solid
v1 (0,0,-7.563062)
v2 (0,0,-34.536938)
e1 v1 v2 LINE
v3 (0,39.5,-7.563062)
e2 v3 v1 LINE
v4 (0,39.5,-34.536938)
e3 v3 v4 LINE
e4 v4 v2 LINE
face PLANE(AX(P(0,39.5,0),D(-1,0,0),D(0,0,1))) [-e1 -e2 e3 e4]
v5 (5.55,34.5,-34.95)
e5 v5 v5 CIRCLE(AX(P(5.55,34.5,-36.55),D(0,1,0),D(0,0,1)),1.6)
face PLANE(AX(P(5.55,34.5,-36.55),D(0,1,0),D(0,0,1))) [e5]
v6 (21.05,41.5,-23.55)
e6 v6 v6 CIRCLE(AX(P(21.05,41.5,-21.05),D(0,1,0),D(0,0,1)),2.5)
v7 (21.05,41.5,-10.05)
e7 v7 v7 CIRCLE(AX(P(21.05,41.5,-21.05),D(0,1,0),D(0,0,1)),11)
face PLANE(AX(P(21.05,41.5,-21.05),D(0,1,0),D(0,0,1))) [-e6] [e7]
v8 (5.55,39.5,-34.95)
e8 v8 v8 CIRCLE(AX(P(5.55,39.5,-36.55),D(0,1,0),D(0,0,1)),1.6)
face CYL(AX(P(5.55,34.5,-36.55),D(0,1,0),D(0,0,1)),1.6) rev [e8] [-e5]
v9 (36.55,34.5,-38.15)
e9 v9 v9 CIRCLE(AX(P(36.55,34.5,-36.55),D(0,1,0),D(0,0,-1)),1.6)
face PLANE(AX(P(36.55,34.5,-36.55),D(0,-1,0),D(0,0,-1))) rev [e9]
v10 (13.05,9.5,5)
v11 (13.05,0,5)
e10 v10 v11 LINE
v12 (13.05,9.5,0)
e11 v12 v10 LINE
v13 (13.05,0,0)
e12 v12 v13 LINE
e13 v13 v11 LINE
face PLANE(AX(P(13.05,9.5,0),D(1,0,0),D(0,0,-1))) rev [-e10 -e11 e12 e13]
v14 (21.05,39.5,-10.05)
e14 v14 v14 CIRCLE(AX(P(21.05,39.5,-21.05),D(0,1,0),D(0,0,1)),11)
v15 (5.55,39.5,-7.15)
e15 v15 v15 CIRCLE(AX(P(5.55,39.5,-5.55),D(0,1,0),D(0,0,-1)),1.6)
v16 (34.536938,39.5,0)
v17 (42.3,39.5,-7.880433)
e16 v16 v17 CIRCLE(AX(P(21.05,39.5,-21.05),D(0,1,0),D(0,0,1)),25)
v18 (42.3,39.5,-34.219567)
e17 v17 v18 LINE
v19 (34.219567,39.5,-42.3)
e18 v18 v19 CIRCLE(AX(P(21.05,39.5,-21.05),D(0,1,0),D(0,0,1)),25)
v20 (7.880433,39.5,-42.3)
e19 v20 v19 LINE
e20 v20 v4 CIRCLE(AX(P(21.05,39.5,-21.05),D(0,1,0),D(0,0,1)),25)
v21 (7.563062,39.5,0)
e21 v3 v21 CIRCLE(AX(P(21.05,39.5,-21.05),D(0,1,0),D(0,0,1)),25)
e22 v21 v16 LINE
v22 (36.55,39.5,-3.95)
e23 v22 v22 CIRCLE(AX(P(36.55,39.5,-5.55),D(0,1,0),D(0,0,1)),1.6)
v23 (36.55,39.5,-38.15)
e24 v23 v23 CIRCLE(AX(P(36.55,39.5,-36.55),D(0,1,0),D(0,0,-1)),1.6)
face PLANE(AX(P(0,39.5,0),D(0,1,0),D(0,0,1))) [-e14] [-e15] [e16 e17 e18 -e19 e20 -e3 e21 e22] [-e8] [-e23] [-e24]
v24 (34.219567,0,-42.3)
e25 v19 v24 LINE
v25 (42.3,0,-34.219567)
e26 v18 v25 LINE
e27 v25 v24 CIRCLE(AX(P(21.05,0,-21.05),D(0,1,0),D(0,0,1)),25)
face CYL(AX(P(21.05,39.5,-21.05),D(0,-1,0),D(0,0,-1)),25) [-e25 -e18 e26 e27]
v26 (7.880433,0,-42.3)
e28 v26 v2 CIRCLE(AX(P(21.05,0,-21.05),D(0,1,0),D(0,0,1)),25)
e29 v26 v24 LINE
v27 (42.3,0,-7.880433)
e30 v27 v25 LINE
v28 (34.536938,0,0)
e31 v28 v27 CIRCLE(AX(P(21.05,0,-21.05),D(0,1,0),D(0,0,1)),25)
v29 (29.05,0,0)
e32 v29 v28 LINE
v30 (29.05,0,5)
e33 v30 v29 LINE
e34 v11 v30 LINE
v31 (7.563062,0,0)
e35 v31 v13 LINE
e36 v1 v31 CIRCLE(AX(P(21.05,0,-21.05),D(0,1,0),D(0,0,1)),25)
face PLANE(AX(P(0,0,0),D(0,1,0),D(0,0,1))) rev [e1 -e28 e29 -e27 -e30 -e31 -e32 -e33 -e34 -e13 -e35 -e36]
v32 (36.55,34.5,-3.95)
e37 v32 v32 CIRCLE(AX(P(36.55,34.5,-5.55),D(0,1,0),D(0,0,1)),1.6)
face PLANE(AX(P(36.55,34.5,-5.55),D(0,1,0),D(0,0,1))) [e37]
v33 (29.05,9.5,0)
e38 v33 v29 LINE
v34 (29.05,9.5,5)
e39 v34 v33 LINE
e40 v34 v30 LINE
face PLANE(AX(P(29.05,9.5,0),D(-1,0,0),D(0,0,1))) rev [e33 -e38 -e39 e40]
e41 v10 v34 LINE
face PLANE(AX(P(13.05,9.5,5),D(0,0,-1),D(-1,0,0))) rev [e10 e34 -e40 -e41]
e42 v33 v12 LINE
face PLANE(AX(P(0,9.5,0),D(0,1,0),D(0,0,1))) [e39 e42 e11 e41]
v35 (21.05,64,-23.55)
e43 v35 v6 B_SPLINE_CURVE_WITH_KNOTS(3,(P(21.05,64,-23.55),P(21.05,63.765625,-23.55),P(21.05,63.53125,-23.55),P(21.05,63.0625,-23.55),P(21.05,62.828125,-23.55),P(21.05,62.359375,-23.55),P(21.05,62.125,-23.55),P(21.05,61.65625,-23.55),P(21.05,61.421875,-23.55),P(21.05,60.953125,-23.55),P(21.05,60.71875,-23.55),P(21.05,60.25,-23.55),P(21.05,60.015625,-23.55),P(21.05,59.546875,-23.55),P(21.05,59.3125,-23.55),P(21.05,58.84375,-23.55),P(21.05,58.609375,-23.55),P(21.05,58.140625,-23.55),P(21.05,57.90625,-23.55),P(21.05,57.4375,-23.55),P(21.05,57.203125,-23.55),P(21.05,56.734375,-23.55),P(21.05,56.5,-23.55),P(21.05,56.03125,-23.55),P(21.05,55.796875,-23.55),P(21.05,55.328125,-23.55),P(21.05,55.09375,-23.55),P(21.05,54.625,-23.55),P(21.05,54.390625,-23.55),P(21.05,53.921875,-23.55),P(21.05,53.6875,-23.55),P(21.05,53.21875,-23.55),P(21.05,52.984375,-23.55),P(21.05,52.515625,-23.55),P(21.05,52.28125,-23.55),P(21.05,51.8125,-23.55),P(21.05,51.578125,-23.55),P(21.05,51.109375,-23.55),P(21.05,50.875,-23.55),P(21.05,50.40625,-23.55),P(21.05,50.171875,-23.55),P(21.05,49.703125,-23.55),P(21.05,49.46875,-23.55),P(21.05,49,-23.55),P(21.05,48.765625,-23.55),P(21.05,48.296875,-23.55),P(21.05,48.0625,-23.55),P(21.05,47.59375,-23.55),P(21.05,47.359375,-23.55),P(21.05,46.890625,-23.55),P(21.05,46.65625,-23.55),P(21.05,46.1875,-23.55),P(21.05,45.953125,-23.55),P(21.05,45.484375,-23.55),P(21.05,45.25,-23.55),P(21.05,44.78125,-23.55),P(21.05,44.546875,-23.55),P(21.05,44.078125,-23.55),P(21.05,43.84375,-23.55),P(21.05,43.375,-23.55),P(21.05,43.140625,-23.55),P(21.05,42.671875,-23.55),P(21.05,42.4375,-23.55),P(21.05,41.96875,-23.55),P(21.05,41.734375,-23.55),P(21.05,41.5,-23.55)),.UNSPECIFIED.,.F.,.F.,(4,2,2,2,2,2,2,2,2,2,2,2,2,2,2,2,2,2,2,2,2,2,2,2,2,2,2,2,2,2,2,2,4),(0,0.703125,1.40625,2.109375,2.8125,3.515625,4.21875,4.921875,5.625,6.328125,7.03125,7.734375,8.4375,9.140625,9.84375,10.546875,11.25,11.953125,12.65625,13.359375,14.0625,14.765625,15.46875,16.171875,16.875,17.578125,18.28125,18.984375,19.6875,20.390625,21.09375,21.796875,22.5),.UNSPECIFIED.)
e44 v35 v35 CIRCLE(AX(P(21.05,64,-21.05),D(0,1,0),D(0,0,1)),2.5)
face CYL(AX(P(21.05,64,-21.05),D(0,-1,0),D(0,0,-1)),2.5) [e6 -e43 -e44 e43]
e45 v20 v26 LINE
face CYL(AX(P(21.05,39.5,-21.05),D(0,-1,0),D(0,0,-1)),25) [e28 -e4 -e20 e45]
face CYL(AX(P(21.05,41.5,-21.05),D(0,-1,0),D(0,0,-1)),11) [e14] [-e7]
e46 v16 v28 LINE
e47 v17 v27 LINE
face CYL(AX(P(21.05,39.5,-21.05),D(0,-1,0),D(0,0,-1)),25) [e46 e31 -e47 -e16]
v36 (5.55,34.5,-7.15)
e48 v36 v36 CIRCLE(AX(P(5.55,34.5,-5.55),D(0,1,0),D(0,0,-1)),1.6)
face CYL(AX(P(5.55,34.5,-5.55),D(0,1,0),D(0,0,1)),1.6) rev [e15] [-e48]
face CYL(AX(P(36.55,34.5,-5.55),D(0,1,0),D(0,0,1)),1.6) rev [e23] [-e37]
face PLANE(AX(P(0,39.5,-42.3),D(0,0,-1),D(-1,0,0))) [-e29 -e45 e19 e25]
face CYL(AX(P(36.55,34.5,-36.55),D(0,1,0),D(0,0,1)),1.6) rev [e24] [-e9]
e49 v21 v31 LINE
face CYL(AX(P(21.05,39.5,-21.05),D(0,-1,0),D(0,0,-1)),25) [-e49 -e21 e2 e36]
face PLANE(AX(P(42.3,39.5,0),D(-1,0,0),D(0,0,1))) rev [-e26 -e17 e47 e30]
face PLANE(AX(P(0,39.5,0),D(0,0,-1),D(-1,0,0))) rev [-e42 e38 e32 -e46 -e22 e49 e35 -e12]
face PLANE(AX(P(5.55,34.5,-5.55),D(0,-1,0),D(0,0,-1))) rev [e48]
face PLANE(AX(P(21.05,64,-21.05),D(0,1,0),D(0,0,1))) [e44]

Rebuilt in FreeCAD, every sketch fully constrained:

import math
import FreeCAD as App
import Part
import Sketcher

V = App.Vector
Q = App.Units.Quantity


def add_polygon(sketch, points):
    """Adds a closed chain of lines whose ends are joined by coincident constraints."""
    first, n = sketch.GeometryCount, len(points)
    for a, b in zip(points, points[1:] + points[:1]):
        sketch.addGeometry(Part.LineSegment(App.Vector(*a, 0), App.Vector(*b, 0)), False)
    for i in range(n):
        sketch.addConstraint(Sketcher.Constraint("Coincident", first + i, 2, first + (i + 1) % n, 1))

doc = App.newDocument("Part")
body = doc.addObject("PartDesign::Body", "Body")

# Sketch on XZ plane
sketch1 = body.newObject("Sketcher::SketchObject", "Sketch")
sketch1.AttachmentSupport = (doc.getObject("XZ_Plane"), [""])
sketch1.MapMode = "FlatFace"
sketch1.addGeometry(Part.ArcOfCircle(Part.Circle(V(21.05, -21.05, 0), V(0, 0, 1), 25), math.radians(122.648079), math.radians(147.351921)), False)
sketch1.addGeometry(Part.LineSegment(V(7.563062, 0, 0), V(34.536938, 0, 0)), False)
sketch1.addGeometry(Part.ArcOfCircle(Part.Circle(V(21.05, -21.05, 0), V(0, 0, 1), 25), math.radians(31.788331), math.radians(57.351921)), False)
sketch1.addGeometry(Part.LineSegment(V(42.3, -7.880433, 0), V(42.3, -34.219567, 0)), False)
sketch1.addGeometry(Part.ArcOfCircle(Part.Circle(V(21.05, -21.05, 0), V(0, 0, 1), 25), math.radians(-58.211669), math.radians(-31.788331)), False)
sketch1.addGeometry(Part.LineSegment(V(34.219567, -42.3, 0), V(7.880433, -42.3, 0)), False)
sketch1.addGeometry(Part.ArcOfCircle(Part.Circle(V(21.05, -21.05, 0), V(0, 0, 1), 25), math.radians(-147.351921), math.radians(-121.788331)), False)
sketch1.addGeometry(Part.LineSegment(V(0, -34.536938, 0), V(0, -7.563062, 0)), False)
sketch1.addConstraint(Sketcher.Constraint("Coincident", 0, 1, 1, 1))
sketch1.addConstraint(Sketcher.Constraint("Coincident", 1, 2, 2, 2))
sketch1.addConstraint(Sketcher.Constraint("Coincident", 2, 1, 3, 1))
sketch1.addConstraint(Sketcher.Constraint("Coincident", 3, 2, 4, 2))
sketch1.addConstraint(Sketcher.Constraint("Coincident", 4, 1, 5, 1))
sketch1.addConstraint(Sketcher.Constraint("Coincident", 5, 2, 6, 2))
sketch1.addConstraint(Sketcher.Constraint("Coincident", 6, 1, 7, 1))
sketch1.addConstraint(Sketcher.Constraint("Coincident", 7, 2, 0, 2))
sketch1.addConstraint(Sketcher.Constraint("Horizontal", 1))
sketch1.addConstraint(Sketcher.Constraint("Vertical", 3))
sketch1.addConstraint(Sketcher.Constraint("Horizontal", 5))
sketch1.addConstraint(Sketcher.Constraint("Vertical", 7))
sketch1.addConstraint(Sketcher.Constraint("Coincident", 2, 3, 0, 3))
sketch1.addConstraint(Sketcher.Constraint("Coincident", 4, 3, 0, 3))
sketch1.addConstraint(Sketcher.Constraint("Coincident", 6, 3, 0, 3))
sketch1.addConstraint(Sketcher.Constraint("Equal", 0, 2))
sketch1.addConstraint(Sketcher.Constraint("Equal", 2, 4))
sketch1.addConstraint(Sketcher.Constraint("Equal", 4, 6))
sketch1.addConstraint(Sketcher.Constraint("PointOnObject", 0, 1, -1))
sketch1.addConstraint(Sketcher.Constraint("PointOnObject", 6, 1, -2))
sketch1.addConstraint(Sketcher.Constraint("Equal", 5, 3))
sketch1.addConstraint(Sketcher.Constraint("Equal", 1, 7))
sketch1.addConstraint(Sketcher.Constraint("Radius", 0, Q("25 mm")))
sketch1.addConstraint(Sketcher.Constraint("DistanceX", -1, 1, 2, 1, Q("42.3 mm")))
sketch1.addConstraint(Sketcher.Constraint("DistanceX", -1, 1, 0, 3, Q("21.05 mm")))
pad1 = body.newObject("PartDesign::Pad", "Pad")
pad1.Profile = sketch1
pad1.Length = 39.5
pad1.Reversed = True

# Sketch on XZ plane
sketch2 = body.newObject("Sketcher::SketchObject", "Sketch001")
sketch2.AttachmentSupport = (doc.getObject("XZ_Plane"), [""])
sketch2.MapMode = "FlatFace"
sketch2.AttachmentOffset = App.Placement(V(0, 0, -39.5), App.Rotation())
sketch2.addGeometry(Part.Circle(V(21.05, -21.05, 0), V(0, 0, 1), 11), False)
sketch2.addConstraint(Sketcher.Constraint("Diameter", 0, Q("22 mm")))
sketch2.addConstraint(Sketcher.Constraint("DistanceX", -1, 1, 0, 3, Q("21.05 mm")))
sketch2.addConstraint(Sketcher.Constraint("DistanceY", 0, 3, -1, 1, Q("21.05 mm")))
pad2 = body.newObject("PartDesign::Pad", "Pad001")
pad2.Profile = sketch2
pad2.Length = 2
pad2.Reversed = True

# Sketch on XZ plane
sketch3 = body.newObject("Sketcher::SketchObject", "Sketch002")
sketch3.AttachmentSupport = (doc.getObject("XZ_Plane"), [""])
sketch3.MapMode = "FlatFace"
sketch3.AttachmentOffset = App.Placement(V(0, 0, -41.5), App.Rotation())
sketch3.addGeometry(Part.Circle(V(21.05, -21.05, 0), V(0, 0, 1), 2.5), False)
sketch3.addConstraint(Sketcher.Constraint("Diameter", 0, Q("5 mm")))
sketch3.addConstraint(Sketcher.Constraint("DistanceX", -1, 1, 0, 3, Q("21.05 mm")))
sketch3.addConstraint(Sketcher.Constraint("DistanceY", 0, 3, -1, 1, Q("21.05 mm")))
pad3 = body.newObject("PartDesign::Pad", "Pad002")
pad3.Profile = sketch3
pad3.Length = 22.5
pad3.Reversed = True

# Sketch on XZ plane
sketch4 = body.newObject("Sketcher::SketchObject", "Sketch003")
sketch4.AttachmentSupport = (doc.getObject("XZ_Plane"), [""])
sketch4.MapMode = "FlatFace"
add_polygon(sketch4, [(13.05, 0), (13.05, 5), (29.05, 5), (29.05, 0)])  # lines 0-3
sketch4.addConstraint(Sketcher.Constraint("Vertical", 0))
sketch4.addConstraint(Sketcher.Constraint("Horizontal", 1))
sketch4.addConstraint(Sketcher.Constraint("Vertical", 2))
sketch4.addConstraint(Sketcher.Constraint("Horizontal", 3))
sketch4.addConstraint(Sketcher.Constraint("PointOnObject", 2, 2, -1))
sketch4.addConstraint(Sketcher.Constraint("DistanceX", 1, 1, 1, 2, Q("16 mm")))
sketch4.addConstraint(Sketcher.Constraint("DistanceY", 0, 1, 0, 2, Q("5 mm")))
sketch4.addConstraint(Sketcher.Constraint("DistanceX", -1, 1, 0, 2, Q("13.05 mm")))
pad4 = body.newObject("PartDesign::Pad", "Pad003")
pad4.Profile = sketch4
pad4.Length = 9.5
pad4.Reversed = True

# Sketch on XZ plane
sketch5 = body.newObject("Sketcher::SketchObject", "Sketch004")
sketch5.AttachmentSupport = (doc.getObject("XZ_Plane"), [""])
sketch5.MapMode = "FlatFace"
sketch5.AttachmentOffset = App.Placement(V(0, 0, -39.5), App.Rotation())
sketch5.addGeometry(Part.Circle(V(5.55, -36.55, 0), V(0, 0, 1), 1.6), False)
sketch5.addGeometry(Part.Circle(V(36.55, -36.55, 0), V(0, 0, 1), 1.6), False)
sketch5.addGeometry(Part.Circle(V(36.55, -5.55, 0), V(0, 0, 1), 1.6), False)
sketch5.addGeometry(Part.Circle(V(5.55, -5.55, 0), V(0, 0, 1), 1.6), False)
sketch5.addConstraint(Sketcher.Constraint("Equal", 0, 1))
sketch5.addConstraint(Sketcher.Constraint("Equal", 1, 2))
sketch5.addConstraint(Sketcher.Constraint("Equal", 2, 3))
sketch5.addConstraint(Sketcher.Constraint("Horizontal", 0, 3, 1, 3))
sketch5.addConstraint(Sketcher.Constraint("Horizontal", 2, 3, 3, 3))
sketch5.addConstraint(Sketcher.Constraint("Vertical", 1, 3, 2, 3))
sketch5.addConstraint(Sketcher.Constraint("Vertical", 0, 3, 3, 3))
sketch5.addConstraint(Sketcher.Constraint("Diameter", 0, Q("3.2 mm")))
sketch5.addConstraint(Sketcher.Constraint("DistanceX", 0, 3, 1, 3, Q("31 mm")))
sketch5.addConstraint(Sketcher.Constraint("DistanceY", 1, 3, 2, 3, Q("31 mm")))
sketch5.addConstraint(Sketcher.Constraint("DistanceX", -1, 1, 0, 3, Q("5.55 mm")))
sketch5.addConstraint(Sketcher.Constraint("DistanceY", 0, 3, -1, 1, Q("36.55 mm")))
pocket1 = body.newObject("PartDesign::Pocket", "Pocket")
pocket1.Profile = sketch5
pocket1.Length = 5
pocket1.Reversed = True

doc.recompute()
